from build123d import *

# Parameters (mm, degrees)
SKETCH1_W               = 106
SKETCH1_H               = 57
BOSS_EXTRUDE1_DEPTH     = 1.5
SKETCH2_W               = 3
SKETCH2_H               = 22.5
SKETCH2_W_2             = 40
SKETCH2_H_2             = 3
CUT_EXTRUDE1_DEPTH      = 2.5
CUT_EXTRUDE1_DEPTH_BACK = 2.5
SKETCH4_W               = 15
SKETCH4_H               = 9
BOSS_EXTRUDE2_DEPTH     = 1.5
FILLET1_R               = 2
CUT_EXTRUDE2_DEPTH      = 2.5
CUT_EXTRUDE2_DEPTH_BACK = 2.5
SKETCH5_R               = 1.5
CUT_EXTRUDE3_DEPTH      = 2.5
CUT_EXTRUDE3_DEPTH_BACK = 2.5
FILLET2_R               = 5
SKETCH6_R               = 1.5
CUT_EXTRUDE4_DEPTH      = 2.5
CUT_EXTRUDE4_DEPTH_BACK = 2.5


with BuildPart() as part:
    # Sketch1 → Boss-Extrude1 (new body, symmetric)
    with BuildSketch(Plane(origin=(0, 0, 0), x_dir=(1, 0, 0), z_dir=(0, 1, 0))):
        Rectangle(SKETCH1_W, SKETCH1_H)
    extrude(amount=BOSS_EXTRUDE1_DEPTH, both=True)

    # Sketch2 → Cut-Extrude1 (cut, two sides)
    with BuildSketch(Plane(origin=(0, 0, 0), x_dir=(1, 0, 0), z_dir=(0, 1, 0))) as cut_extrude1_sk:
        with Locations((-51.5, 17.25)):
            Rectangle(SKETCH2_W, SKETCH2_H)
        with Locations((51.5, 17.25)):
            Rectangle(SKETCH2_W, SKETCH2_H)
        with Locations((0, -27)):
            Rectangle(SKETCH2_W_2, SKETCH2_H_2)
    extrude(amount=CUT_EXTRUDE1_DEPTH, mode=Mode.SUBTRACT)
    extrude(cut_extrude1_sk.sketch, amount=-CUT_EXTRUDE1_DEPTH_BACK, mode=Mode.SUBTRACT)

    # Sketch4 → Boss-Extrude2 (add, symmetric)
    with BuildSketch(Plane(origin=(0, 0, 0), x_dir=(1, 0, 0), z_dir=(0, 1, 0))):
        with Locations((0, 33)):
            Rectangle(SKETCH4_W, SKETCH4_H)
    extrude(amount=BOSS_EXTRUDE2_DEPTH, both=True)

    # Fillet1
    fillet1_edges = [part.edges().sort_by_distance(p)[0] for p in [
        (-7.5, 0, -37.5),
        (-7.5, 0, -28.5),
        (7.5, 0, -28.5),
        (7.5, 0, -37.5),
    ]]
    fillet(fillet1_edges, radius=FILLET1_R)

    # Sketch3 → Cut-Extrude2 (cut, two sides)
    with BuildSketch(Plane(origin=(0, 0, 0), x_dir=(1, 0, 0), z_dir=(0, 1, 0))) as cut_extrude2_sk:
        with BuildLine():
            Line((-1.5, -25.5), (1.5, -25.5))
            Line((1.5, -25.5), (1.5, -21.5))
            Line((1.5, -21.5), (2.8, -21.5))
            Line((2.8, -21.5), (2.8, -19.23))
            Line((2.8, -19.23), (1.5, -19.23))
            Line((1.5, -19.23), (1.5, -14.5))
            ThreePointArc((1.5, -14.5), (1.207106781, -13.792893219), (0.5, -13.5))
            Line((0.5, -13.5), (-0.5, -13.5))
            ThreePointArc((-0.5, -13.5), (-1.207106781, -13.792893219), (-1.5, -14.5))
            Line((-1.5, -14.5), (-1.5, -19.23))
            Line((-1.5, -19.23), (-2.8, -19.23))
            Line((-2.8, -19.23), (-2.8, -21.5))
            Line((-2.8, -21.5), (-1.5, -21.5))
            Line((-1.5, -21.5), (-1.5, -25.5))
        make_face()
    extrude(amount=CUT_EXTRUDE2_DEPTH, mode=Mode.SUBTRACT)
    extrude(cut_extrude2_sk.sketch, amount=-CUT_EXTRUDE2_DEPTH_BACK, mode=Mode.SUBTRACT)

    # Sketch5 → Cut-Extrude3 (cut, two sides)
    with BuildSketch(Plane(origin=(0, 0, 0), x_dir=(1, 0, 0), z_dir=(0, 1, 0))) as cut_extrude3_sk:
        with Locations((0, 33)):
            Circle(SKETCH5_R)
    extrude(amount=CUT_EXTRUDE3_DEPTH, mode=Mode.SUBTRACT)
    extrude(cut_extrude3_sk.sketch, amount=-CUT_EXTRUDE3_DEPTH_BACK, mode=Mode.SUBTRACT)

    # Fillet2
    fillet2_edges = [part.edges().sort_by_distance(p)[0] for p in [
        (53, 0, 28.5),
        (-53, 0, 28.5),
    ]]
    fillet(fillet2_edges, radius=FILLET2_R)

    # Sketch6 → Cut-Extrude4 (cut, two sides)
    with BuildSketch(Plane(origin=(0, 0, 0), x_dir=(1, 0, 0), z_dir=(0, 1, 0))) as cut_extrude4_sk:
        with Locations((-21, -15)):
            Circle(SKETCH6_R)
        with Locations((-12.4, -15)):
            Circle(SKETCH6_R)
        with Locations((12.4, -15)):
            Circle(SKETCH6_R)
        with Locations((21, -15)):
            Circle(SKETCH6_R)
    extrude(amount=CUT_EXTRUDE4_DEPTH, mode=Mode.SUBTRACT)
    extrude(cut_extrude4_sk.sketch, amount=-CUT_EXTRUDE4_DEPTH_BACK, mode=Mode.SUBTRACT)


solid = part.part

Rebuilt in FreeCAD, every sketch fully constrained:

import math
import FreeCAD as App
import Part
import Sketcher
from FreeCAD import Vector
Q = App.Units.Quantity


def edges_at(feature, points):
    """Names of the edges that pass closest to the given points."""
    edges = feature.Shape.Edges
    near = lambda p: min(range(len(edges)), key=lambda i: edges[i].distToShape(Part.Vertex(*p))[0])
    return sorted({f"Edge{near(p) + 1}" for p in points})


def add_polygon(sketch, points):
    """Adds a closed chain of lines whose ends are joined by coincident constraints."""
    first, n = sketch.GeometryCount, len(points)
    for a, b in zip(points, points[1:] + points[:1]):
        sketch.addGeometry(Part.LineSegment(App.Vector(*a, 0), App.Vector(*b, 0)), False)
    for i in range(n):
        sketch.addConstraint(Sketcher.Constraint("Coincident", first + i, 2, first + (i + 1) % n, 1))

doc = App.newDocument("Part")
body = doc.addObject("PartDesign::Body", "Body")

sketch1 = body.newObject("Sketcher::SketchObject", "Sketch")
sketch1.AttachmentSupport = (doc.getObject("XZ_Plane"), [""])
sketch1.MapMode = "FlatFace"
add_polygon(sketch1, [(-53, -28), (-53, 28), (53, 28), (53, -28)])
sketch1.addConstraint([
    Sketcher.Constraint("Vertical", 0),
    Sketcher.Constraint("Horizontal", 1),
    Sketcher.Constraint("Vertical", 2),
    Sketcher.Constraint("Horizontal", 3),
    Sketcher.Constraint("Symmetric", 0, 2, 2, 2, -1, 1),
    Sketcher.Constraint("DistanceX", 1, 1, 1, 2, Q("106 mm")),
    Sketcher.Constraint("DistanceY", 0, 1, 0, 2, Q("57 mm")),
])
pad1 = body.newObject("PartDesign::Pad", "Pad")
pad1.Profile = sketch1
pad1.Length = 3
pad1.Midplane = True

sketch2 = body.newObject("Sketcher::SketchObject", "Sketch001")
sketch2.AttachmentSupport = (doc.getObject("XZ_Plane"), [""])
sketch2.MapMode = "FlatFace"
add_polygon(sketch2, [(-53, -28.5), (-53, -6), (-50, -6), (-50, -28.5)])
add_polygon(sketch2, [(50, -28.5), (50, -6), (53, -6), (53, -28.5)])
add_polygon(sketch2, [(-20, 25.5), (-20, 28.5), (20, 28.5), (20, 25.5)])
sketch2.addConstraint([
    Sketcher.Constraint("Vertical", 0),
    Sketcher.Constraint("Horizontal", 1),
    Sketcher.Constraint("Vertical", 2),
    Sketcher.Constraint("Horizontal", 3),
    Sketcher.Constraint("Vertical", 4),
    Sketcher.Constraint("Horizontal", 5),
    Sketcher.Constraint("Vertical", 6),
    Sketcher.Constraint("Horizontal", 7),
    Sketcher.Constraint("Vertical", 8),
    Sketcher.Constraint("Horizontal", 9),
    Sketcher.Constraint("Vertical", 10),
    Sketcher.Constraint("Horizontal", 11),
    Sketcher.Constraint("Symmetric", 1, 2, 4, 2, -2),
    Sketcher.Constraint("Symmetric", 3, 2, 6, 2, -2),
    Sketcher.Constraint("Equal", 7, 8),
    Sketcher.Constraint("DistanceX", 1, 1, 1, 2, Q("3 mm")),
    Sketcher.Constraint("DistanceX", 9, 1, 9, 2, Q("40 mm")),
    Sketcher.Constraint("DistanceY", 0, 1, 0, 2, Q("22.5 mm")),
    Sketcher.Constraint("DistanceX", 0, 2, -1, 1, Q("53 mm")),
    Sketcher.Constraint("DistanceY", 0, 2, -1, 1, Q("6 mm")),
    Sketcher.Constraint("DistanceX", 8, 2, -1, 1, Q("20 mm")),
    Sketcher.Constraint("DistanceY", 2, 2, 8, 2, Q("57 mm")),
])
pocket1 = body.newObject("PartDesign::Pocket", "Pocket")
pocket1.Profile = sketch2
pocket1.Type = "ThroughAll"
pocket1.Midplane = True

sketch3 = body.newObject("Sketcher::SketchObject", "Sketch002")
sketch3.AttachmentSupport = (doc.getObject("XZ_Plane"), [""])
sketch3.MapMode = "FlatFace"
add_polygon(sketch3, [(-8, -38), (-8, -28), (8, -28), (8, -38)])
sketch3.addConstraint([
    Sketcher.Constraint("Vertical", 0),
    Sketcher.Constraint("Horizontal", 1),
    Sketcher.Constraint("Vertical", 2),
    Sketcher.Constraint("Horizontal", 3),
    Sketcher.Constraint("DistanceX", 1, 1, 1, 2, Q("15 mm")),
    Sketcher.Constraint("DistanceY", 0, 1, 0, 2, Q("9 mm")),
    Sketcher.Constraint("DistanceX", 0, 2, -1, 1, Q("7.5 mm")),
    Sketcher.Constraint("DistanceY", 0, 2, -1, 1, Q("28.5 mm")),
])
pad2 = body.newObject("PartDesign::Pad", "Pad001")
pad2.Profile = sketch3
pad2.Length = 3
pad2.Midplane = True
doc.recompute()

fillet = body.newObject("PartDesign::Fillet", "Fillet")
fillet.Base = (pad2, edges_at(pad2, [
    (-7.5, 0, -37.5),
    (-7.5, 0, -28.5),
    (7.5, 0, -28.5),
    (7.5, 0, -37.5),
]))
fillet.Radius = 2

sketch4 = body.newObject("Sketcher::SketchObject", "Sketch003")
sketch4.AttachmentSupport = (doc.getObject("XZ_Plane"), [""])
sketch4.MapMode = "FlatFace"
sketch4.addGeometry([
    Part.LineSegment(Vector(-1.5, 25.5, 0), Vector(1.5, 25.5, 0)),
    Part.LineSegment(Vector(1.5, 25.5, 0), Vector(1.5, 21.5, 0)),
    Part.LineSegment(Vector(1.5, 21.5, 0), Vector(2.8, 21.5, 0)),
    Part.LineSegment(Vector(2.8, 21.5, 0), Vector(2.8, 19.2, 0)),
    Part.LineSegment(Vector(2.8, 19.2, 0), Vector(1.5, 19.2, 0)),
    Part.LineSegment(Vector(1.5, 19.2, 0), Vector(1.5, 14.5, 0)),
    Part.ArcOfCircle(Part.Circle(Vector(0.5, 14.5, 0), Vector(0, 0, 1), 1), math.radians(-90), math.radians(0)),
    Part.LineSegment(Vector(0.5, 13.5, 0), Vector(-0.5, 13.5, 0)),
    Part.ArcOfCircle(Part.Circle(Vector(-0.5, 14.5, 0), Vector(0, 0, 1), 1), math.radians(-180), math.radians(-90)),
    Part.LineSegment(Vector(-1.5, 14.5, 0), Vector(-1.5, 19.2, 0)),
    Part.LineSegment(Vector(-1.5, 19.2, 0), Vector(-2.8, 19.2, 0)),
    Part.LineSegment(Vector(-2.8, 19.2, 0), Vector(-2.8, 21.5, 0)),
    Part.LineSegment(Vector(-2.8, 21.5, 0), Vector(-1.5, 21.5, 0)),
    Part.LineSegment(Vector(-1.5, 21.5, 0), Vector(-1.5, 25.5, 0)),
], False)
sketch4.addConstraint([
    Sketcher.Constraint("Coincident", 0, 2, 1, 1),
    Sketcher.Constraint("Coincident", 1, 2, 2, 1),
    Sketcher.Constraint("Coincident", 2, 2, 3, 1),
    Sketcher.Constraint("Coincident", 3, 2, 4, 1),
    Sketcher.Constraint("Coincident", 4, 2, 5, 1),
    Sketcher.Constraint("Tangent", 5, 2, 6, 2),
    Sketcher.Constraint("Tangent", 6, 1, 7, 1),
    Sketcher.Constraint("Tangent", 7, 2, 8, 2),
    Sketcher.Constraint("Tangent", 8, 1, 9, 1),
    Sketcher.Constraint("Coincident", 9, 2, 10, 1),
    Sketcher.Constraint("Coincident", 10, 2, 11, 1),
    Sketcher.Constraint("Coincident", 11, 2, 12, 1),
    Sketcher.Constraint("Coincident", 12, 2, 13, 1),
    Sketcher.Constraint("Coincident", 13, 2, 0, 1),
    Sketcher.Constraint("Horizontal", 0),
    Sketcher.Constraint("Vertical", 1),
    Sketcher.Constraint("Horizontal", 2),
    Sketcher.Constraint("Vertical", 3),
    Sketcher.Constraint("Horizontal", 4),
    Sketcher.Constraint("Vertical", 5),
    Sketcher.Constraint("Horizontal", 7),
    Sketcher.Constraint("Vertical", 9),
    Sketcher.Constraint("Horizontal", 10),
    Sketcher.Constraint("Vertical", 11),
    Sketcher.Constraint("Horizontal", 12),
    Sketcher.Constraint("Vertical", 13),
    Sketcher.Constraint("Equal", 6, 8),
    Sketcher.Constraint("Symmetric", 4, 2, 9, 2, -2),
    Sketcher.Constraint("Symmetric", 2, 2, 11, 2, -2),
    Sketcher.Constraint("Vertical", 1, 2, 4, 2),
    Sketcher.Constraint("Vertical", 9, 2, 12, 2),
    Sketcher.Constraint("Radius", 6, Q("1 mm")),
    Sketcher.Constraint("DistanceX", 0, 1, 0, 2, Q("3 mm")),
    Sketcher.Constraint("DistanceY", 1, 2, 1, 1, Q("4 mm")),
    Sketcher.Constraint("DistanceX", 2, 1, 2, 2, Q("1.3 mm")),
    Sketcher.Constraint("DistanceY", 6, 3, 0, 2, Q("11 mm")),
    Sketcher.Constraint("DistanceY", 3, 2, 3, 1, Q("2.27 mm")),
    Sketcher.Constraint("DistanceY", -1, 1, 6, 3, Q("14.5 mm")),
])
pocket2 = body.newObject("PartDesign::Pocket", "Pocket001")
pocket2.Profile = sketch4
pocket2.Type = "ThroughAll"
pocket2.Midplane = True

sketch5 = body.newObject("Sketcher::SketchObject", "Sketch004")
sketch5.AttachmentSupport = (doc.getObject("XZ_Plane"), [""])
sketch5.MapMode = "FlatFace"
sketch5.addGeometry(Part.Circle(Vector(0, -33, 0), Vector(0, 0, 1), 1.5), False)
sketch5.addConstraint([
    Sketcher.Constraint("PointOnObject", 0, 3, -2),
    Sketcher.Constraint("Diameter", 0, Q("3 mm")),
    Sketcher.Constraint("DistanceY", 0, 3, -1, 1, Q("33 mm")),
])
pocket3 = body.newObject("PartDesign::Pocket", "Pocket002")
pocket3.Profile = sketch5
pocket3.Type = "ThroughAll"
pocket3.Midplane = True
doc.recompute()

fillet2 = body.newObject("PartDesign::Fillet", "Fillet001")
fillet2.Base = (pocket3, edges_at(pocket3, [(53, 0, 28.5), (-53, 0, 28.5)]))
fillet2.Radius = 5

sketch6 = body.newObject("Sketcher::SketchObject", "Sketch005")
sketch6.AttachmentSupport = (doc.getObject("XZ_Plane"), [""])
sketch6.MapMode = "FlatFace"
sketch6.addGeometry([
    Part.Circle(Vector(-21, 15, 0), Vector(0, 0, 1), 1.5),
    Part.Circle(Vector(-12.4, 15, 0), Vector(0, 0, 1), 1.5),
    Part.Circle(Vector(12.4, 15, 0), Vector(0, 0, 1), 1.5),
    Part.Circle(Vector(21, 15, 0), Vector(0, 0, 1), 1.5),
], False)
sketch6.addConstraint([
    Sketcher.Constraint("Equal", 0, 1),
    Sketcher.Constraint("Equal", 1, 2),
    Sketcher.Constraint("Equal", 2, 3),
    Sketcher.Constraint("Symmetric", 1, 3, 2, 3, -2),
    Sketcher.Constraint("Symmetric", 0, 3, 3, 3, -2),
    Sketcher.Constraint("Horizontal", 0, 3, 1, 3),
    Sketcher.Constraint("Diameter", 0, Q("3 mm")),
    Sketcher.Constraint("DistanceX", 0, 3, -1, 1, Q("21 mm")),
    Sketcher.Constraint("DistanceY", -1, 1, 0, 3, Q("15 mm")),
    Sketcher.Constraint("DistanceX", 1, 3, -1, 1, Q("12.4 mm")),
])
pocket4 = body.newObject("PartDesign::Pocket", "Pocket003")
pocket4.Profile = sketch6
pocket4.Type = "ThroughAll"
pocket4.Midplane = True

doc.recompute()
